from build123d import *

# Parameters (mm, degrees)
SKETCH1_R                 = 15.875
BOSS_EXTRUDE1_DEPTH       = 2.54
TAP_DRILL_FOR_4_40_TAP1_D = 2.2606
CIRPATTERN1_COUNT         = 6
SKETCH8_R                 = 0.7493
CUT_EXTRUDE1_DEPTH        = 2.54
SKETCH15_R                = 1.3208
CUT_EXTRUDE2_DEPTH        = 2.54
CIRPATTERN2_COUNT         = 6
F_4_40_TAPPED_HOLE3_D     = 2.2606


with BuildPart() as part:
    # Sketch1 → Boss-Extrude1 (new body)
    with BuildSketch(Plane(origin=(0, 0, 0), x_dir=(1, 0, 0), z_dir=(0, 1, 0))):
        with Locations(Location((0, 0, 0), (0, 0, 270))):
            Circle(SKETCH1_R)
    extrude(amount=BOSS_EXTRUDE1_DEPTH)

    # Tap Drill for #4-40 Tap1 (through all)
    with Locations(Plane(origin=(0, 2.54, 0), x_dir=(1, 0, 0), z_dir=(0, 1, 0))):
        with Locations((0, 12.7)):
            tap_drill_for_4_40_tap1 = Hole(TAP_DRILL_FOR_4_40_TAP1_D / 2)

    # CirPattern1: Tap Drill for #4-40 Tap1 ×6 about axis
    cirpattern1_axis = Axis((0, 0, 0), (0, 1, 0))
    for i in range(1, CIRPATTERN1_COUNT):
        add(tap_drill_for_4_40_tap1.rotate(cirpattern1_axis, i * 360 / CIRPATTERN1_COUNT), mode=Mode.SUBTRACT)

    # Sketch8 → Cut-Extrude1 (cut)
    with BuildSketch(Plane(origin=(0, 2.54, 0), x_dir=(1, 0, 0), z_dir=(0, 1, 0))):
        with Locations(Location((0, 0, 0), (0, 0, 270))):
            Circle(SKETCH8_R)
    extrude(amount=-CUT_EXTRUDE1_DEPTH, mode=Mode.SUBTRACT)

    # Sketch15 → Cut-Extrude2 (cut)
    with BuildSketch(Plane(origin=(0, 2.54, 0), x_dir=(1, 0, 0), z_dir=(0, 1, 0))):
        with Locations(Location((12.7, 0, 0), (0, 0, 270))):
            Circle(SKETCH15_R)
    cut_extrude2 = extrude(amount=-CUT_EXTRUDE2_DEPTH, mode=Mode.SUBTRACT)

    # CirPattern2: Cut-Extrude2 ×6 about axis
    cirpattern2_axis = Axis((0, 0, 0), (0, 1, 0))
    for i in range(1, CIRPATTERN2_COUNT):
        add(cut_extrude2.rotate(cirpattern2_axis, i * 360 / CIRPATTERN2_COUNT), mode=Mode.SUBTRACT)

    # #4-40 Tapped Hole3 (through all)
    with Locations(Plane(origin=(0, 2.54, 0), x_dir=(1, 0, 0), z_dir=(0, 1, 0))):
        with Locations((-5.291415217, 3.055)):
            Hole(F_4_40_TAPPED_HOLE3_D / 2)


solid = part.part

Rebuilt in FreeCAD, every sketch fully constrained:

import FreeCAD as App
import Part
import Sketcher
Q = App.Units.Quantity

doc = App.newDocument("Part")
body = doc.addObject("PartDesign::Body", "Body")

sketch1 = body.newObject("Sketcher::SketchObject", "Sketch")
sketch1.AttachmentSupport = (doc.getObject("XZ_Plane"), [""])
sketch1.MapMode = "FlatFace"
sketch1.addGeometry(Part.Circle(App.Vector(0, 0, 0), App.Vector(0, 0, 1), 16), False)
sketch1.addConstraint(Sketcher.Constraint("Coincident", 0, 3, -1, 1))
sketch1.addConstraint(Sketcher.Constraint("Diameter", 0, Q("1.25 in")))
pad1 = body.newObject("PartDesign::Pad", "Pad")
pad1.Profile = sketch1
pad1.Length = Q("0.1 in")
pad1.Reversed = True

sketch2 = body.newObject("Sketcher::SketchObject", "Sketch001")
sketch2.AttachmentSupport = (doc.getObject("XZ_Plane"), [""])
sketch2.MapMode = "FlatFace"
sketch2.AttachmentOffset = App.Placement(App.Vector(0, 0, -0.1 * 25.4), App.Rotation())
sketch2.addGeometry(Part.Circle(App.Vector(0, -12.7, 0), App.Vector(0, 0, 1), 1.1), False)
sketch2.addConstraint(Sketcher.Constraint("PointOnObject", 0, 3, -2))
sketch2.addConstraint(Sketcher.Constraint("Diameter", 0, Q("0.089 in")))
sketch2.addConstraint(Sketcher.Constraint("DistanceY", 0, 3, -1, 1, Q("0.5 in")))
doc.recompute()
hole = body.newObject("PartDesign::Hole", "Hole")
hole.Profile = sketch2
hole.ThreadType = "None"
hole.Diameter = Q("0.089 in")
hole.DepthType = "ThroughAll"
hole.Reversed = True
doc.recompute()

polarpattern = body.newObject("PartDesign::PolarPattern", "PolarPattern")
polarpattern.Originals = [hole]
polarpattern.Axis = (doc.getObject("Y_Axis"), [""])
polarpattern.Angle = 360
polarpattern.Occurrences = 6
body.Tip = polarpattern

sketch3 = body.newObject("Sketcher::SketchObject", "Sketch002")
sketch3.AttachmentSupport = (doc.getObject("XZ_Plane"), [""])
sketch3.MapMode = "FlatFace"
sketch3.AttachmentOffset = App.Placement(App.Vector(0, 0, -0.1 * 25.4), App.Rotation())
sketch3.addGeometry(Part.Circle(App.Vector(0, 0, 0), App.Vector(0, 0, 1), 0.7), False)
sketch3.addConstraint(Sketcher.Constraint("Coincident", 0, 3, -1, 1))
sketch3.addConstraint(Sketcher.Constraint("Diameter", 0, Q("0.059 in")))
pocket1 = body.newObject("PartDesign::Pocket", "Pocket")
pocket1.Profile = sketch3
pocket1.Length = Q("0.1 in")
pocket1.Reversed = True

sketch4 = body.newObject("Sketcher::SketchObject", "Sketch003")
sketch4.AttachmentSupport = (doc.getObject("XZ_Plane"), [""])
sketch4.MapMode = "FlatFace"
sketch4.AttachmentOffset = App.Placement(App.Vector(0, 0, -0.1 * 25.4), App.Rotation())
sketch4.addGeometry(Part.Circle(App.Vector(12.7, 0, 0), App.Vector(0, 0, 1), 1.3), False)
sketch4.addConstraint(Sketcher.Constraint("PointOnObject", 0, 3, -1))
sketch4.addConstraint(Sketcher.Constraint("Diameter", 0, Q("0.104 in")))
sketch4.addConstraint(Sketcher.Constraint("DistanceX", -1, 1, 0, 3, Q("0.5 in")))
pocket2 = body.newObject("PartDesign::Pocket", "Pocket001")
pocket2.Profile = sketch4
pocket2.Length = Q("0.1 in")
pocket2.Reversed = True
doc.recompute()

polarpattern2 = body.newObject("PartDesign::PolarPattern", "PolarPattern001")
polarpattern2.Originals = [pocket2]
polarpattern2.Axis = (doc.getObject("Y_Axis"), [""])
polarpattern2.Angle = 360
polarpattern2.Occurrences = 6
body.Tip = polarpattern2

sketch5 = body.newObject("Sketcher::SketchObject", "Sketch004")
sketch5.AttachmentSupport = (doc.getObject("XZ_Plane"), [""])
sketch5.MapMode = "FlatFace"
sketch5.AttachmentOffset = App.Placement(App.Vector(0, 0, -0.1 * 25.4), App.Rotation())
sketch5.addGeometry(Part.Circle(App.Vector(-5.3, -3.1, 0), App.Vector(0, 0, 1), 1.1), False)
sketch5.addConstraint(Sketcher.Constraint("Diameter", 0, Q("0.089 in")))
sketch5.addConstraint(Sketcher.Constraint("DistanceY", 0, 3, -1, 1, 3.055))
sketch5.addConstraint(Sketcher.Constraint("DistanceX", 0, 3, -1, 1, 5.291415))
doc.recompute()
hole2 = body.newObject("PartDesign::Hole", "Hole001")
hole2.Profile = sketch5
hole2.ThreadType = "None"
hole2.Diameter = Q("0.089 in")
hole2.DepthType = "ThroughAll"
hole2.Reversed = True

doc.recompute()
